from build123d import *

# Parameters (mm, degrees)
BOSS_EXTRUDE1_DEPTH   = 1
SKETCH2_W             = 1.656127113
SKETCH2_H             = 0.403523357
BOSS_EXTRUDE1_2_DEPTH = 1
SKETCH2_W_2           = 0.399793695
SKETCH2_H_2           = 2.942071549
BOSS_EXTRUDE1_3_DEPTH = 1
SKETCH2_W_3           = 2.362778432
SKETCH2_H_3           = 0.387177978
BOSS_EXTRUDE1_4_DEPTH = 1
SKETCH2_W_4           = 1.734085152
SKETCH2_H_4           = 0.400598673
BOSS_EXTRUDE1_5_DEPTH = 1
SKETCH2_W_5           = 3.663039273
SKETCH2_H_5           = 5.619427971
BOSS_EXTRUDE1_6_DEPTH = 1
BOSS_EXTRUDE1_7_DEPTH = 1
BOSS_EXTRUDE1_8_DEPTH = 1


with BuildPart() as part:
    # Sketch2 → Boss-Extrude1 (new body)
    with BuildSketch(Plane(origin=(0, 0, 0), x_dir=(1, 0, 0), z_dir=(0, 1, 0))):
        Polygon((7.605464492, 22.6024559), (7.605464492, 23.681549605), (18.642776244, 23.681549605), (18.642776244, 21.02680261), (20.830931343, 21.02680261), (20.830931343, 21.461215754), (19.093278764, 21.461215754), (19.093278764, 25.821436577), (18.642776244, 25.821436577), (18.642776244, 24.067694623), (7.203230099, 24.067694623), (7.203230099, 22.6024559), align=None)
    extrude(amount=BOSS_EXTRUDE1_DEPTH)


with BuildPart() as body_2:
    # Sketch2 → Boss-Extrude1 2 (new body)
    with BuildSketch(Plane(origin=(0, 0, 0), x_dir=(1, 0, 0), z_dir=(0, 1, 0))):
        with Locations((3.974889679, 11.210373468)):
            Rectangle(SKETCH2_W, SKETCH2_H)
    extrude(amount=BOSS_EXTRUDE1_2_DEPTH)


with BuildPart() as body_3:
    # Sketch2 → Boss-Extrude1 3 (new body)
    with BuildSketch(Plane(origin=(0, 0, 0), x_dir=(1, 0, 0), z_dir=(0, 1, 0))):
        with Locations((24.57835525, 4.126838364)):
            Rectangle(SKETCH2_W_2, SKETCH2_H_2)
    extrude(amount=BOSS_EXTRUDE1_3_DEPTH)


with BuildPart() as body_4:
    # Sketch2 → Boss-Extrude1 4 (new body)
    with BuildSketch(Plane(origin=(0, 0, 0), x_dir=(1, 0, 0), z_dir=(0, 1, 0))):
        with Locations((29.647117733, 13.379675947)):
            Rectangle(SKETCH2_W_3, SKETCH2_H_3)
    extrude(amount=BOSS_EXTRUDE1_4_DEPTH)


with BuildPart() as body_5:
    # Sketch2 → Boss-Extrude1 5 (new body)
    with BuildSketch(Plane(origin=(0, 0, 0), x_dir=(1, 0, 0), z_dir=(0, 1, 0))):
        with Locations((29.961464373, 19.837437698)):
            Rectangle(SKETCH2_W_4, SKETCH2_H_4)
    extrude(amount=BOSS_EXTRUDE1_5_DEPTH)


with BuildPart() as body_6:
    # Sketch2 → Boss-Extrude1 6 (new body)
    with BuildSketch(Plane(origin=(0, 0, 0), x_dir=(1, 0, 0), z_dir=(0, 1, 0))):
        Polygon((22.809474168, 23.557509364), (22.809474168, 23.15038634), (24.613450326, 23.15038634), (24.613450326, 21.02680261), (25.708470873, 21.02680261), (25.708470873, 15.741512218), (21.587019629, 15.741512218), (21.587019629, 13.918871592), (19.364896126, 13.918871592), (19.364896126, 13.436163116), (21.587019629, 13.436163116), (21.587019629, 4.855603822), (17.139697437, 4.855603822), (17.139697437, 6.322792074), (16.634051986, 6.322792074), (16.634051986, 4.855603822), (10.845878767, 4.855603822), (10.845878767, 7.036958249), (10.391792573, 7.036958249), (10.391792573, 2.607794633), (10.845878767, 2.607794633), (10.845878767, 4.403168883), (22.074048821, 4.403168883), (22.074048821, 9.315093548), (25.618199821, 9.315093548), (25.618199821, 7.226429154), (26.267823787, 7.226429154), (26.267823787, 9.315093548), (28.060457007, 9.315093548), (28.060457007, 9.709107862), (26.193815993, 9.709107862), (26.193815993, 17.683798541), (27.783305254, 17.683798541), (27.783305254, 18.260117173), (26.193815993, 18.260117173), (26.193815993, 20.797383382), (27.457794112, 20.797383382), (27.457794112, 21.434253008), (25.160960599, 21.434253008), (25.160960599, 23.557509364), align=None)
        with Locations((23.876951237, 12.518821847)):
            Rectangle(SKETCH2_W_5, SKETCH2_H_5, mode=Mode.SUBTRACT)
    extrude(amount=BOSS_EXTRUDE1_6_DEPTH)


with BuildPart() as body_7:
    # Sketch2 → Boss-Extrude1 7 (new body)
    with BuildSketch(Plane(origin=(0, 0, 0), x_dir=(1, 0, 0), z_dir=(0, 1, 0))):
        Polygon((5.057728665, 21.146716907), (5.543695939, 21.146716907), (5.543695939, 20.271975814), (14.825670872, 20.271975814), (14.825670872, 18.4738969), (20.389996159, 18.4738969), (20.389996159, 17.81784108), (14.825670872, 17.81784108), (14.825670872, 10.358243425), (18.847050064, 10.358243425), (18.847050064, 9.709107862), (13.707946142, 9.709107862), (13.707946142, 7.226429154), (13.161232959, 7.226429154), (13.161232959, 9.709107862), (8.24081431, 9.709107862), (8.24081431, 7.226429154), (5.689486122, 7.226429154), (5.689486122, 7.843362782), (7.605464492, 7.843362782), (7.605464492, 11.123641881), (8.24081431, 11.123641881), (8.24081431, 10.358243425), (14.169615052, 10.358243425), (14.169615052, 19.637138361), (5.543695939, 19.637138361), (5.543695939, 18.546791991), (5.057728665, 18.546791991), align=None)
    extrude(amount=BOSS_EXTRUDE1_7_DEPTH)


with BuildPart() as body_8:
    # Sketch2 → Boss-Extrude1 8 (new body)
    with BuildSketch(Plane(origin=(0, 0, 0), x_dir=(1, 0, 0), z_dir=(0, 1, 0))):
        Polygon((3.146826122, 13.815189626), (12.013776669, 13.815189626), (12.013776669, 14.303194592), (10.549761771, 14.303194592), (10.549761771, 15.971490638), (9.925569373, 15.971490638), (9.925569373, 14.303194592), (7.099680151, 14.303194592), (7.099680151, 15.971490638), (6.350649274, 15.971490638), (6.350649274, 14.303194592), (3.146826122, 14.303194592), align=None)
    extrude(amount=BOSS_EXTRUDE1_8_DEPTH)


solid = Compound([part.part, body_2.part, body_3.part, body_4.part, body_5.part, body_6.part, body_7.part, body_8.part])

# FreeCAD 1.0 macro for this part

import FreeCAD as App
import Part
import Sketcher

V = App.Vector
Q = App.Units.Quantity

doc = App.newDocument("Part")
body = doc.addObject("PartDesign::Body", "Body")

sketch1 = body.newObject("Sketcher::SketchObject", "Sketch")
sketch1.AttachmentSupport = (doc.getObject("XZ_Plane"), [""])
sketch1.MapMode = "FlatFace"
sketch1.addGeometry([
    Part.LineSegment(V(7.61, -22.6, 0), V(7.61, -23.68, 0)),
    Part.LineSegment(V(7.61, -23.68, 0), V(18.64, -23.68, 0)),
    Part.LineSegment(V(18.64, -23.68, 0), V(18.64, -21.03, 0)),
    Part.LineSegment(V(18.64, -21.03, 0), V(20.83, -21.03, 0)),
    Part.LineSegment(V(20.83, -21.03, 0), V(20.83, -21.46, 0)),
    Part.LineSegment(V(20.83, -21.46, 0), V(19.09, -21.46, 0)),
    Part.LineSegment(V(19.09, -21.46, 0), V(19.09, -25.82, 0)),
    Part.LineSegment(V(19.09, -25.82, 0), V(18.64, -25.82, 0)),
    Part.LineSegment(V(18.64, -25.82, 0), V(18.64, -24.07, 0)),
    Part.LineSegment(V(18.64, -24.07, 0), V(7.2, -24.07, 0)),
    Part.LineSegment(V(7.2, -24.07, 0), V(7.2, -22.6, 0)),
    Part.LineSegment(V(7.2, -22.6, 0), V(7.61, -22.6, 0)),
], False)
sketch1.addConstraint([
    Sketcher.Constraint("Coincident", 0, 2, 1, 1),
    Sketcher.Constraint("Coincident", 1, 2, 2, 1),
    Sketcher.Constraint("Coincident", 2, 2, 3, 1),
    Sketcher.Constraint("Coincident", 3, 2, 4, 1),
    Sketcher.Constraint("Coincident", 4, 2, 5, 1),
    Sketcher.Constraint("Coincident", 5, 2, 6, 1),
    Sketcher.Constraint("Coincident", 6, 2, 7, 1),
    Sketcher.Constraint("Coincident", 7, 2, 8, 1),
    Sketcher.Constraint("Coincident", 8, 2, 9, 1),
    Sketcher.Constraint("Coincident", 9, 2, 10, 1),
    Sketcher.Constraint("Coincident", 10, 2, 11, 1),
    Sketcher.Constraint("Coincident", 11, 2, 0, 1),
    Sketcher.Constraint("Vertical", 0),
    Sketcher.Constraint("Horizontal", 1),
    Sketcher.Constraint("Vertical", 2),
    Sketcher.Constraint("Horizontal", 3),
    Sketcher.Constraint("Vertical", 4),
    Sketcher.Constraint("Horizontal", 5),
    Sketcher.Constraint("Vertical", 6),
    Sketcher.Constraint("Horizontal", 7),
    Sketcher.Constraint("Vertical", 8),
    Sketcher.Constraint("Horizontal", 9),
    Sketcher.Constraint("Vertical", 10),
    Sketcher.Constraint("Horizontal", 11),
    Sketcher.Constraint("Vertical", 2, 2, 7, 2),
    Sketcher.Constraint("DistanceX", 1, 1, 1, 2, Q("11.037312 mm")),
    Sketcher.Constraint("DistanceY", 6, 2, 6, 1, Q("4.360221 mm")),
    Sketcher.Constraint("DistanceY", 8, 1, 8, 2, Q("1.753742 mm")),
    Sketcher.Constraint("DistanceY", 10, 1, 10, 2, Q("1.465239 mm")),
    Sketcher.Constraint("DistanceX", 3, 1, 3, 2, Q("2.188155 mm")),
    Sketcher.Constraint("DistanceX", 5, 2, 5, 1, Q("1.737653 mm")),
    Sketcher.Constraint("DistanceX", 9, 2, 9, 1, Q("11.439546 mm")),
    Sketcher.Constraint("DistanceY", 0, 2, 0, 1, Q("1.079094 mm")),
    Sketcher.Constraint("DistanceY", 2, 1, 2, 2, Q("2.654747 mm")),
    Sketcher.Constraint("DistanceY", 0, 2, -1, 1, Q("23.68155 mm")),
    Sketcher.Constraint("DistanceX", -1, 1, 3, 2, Q("20.830931 mm")),
])
pad1 = body.newObject("PartDesign::Pad", "Pad")
pad1.Profile = sketch1
pad1.Length = 1
pad1.Reversed = True
body2 = doc.addObject("PartDesign::Body", "Body001")

sketch2 = body2.newObject("Sketcher::SketchObject", "Sketch001")
sketch2.AttachmentSupport = (doc.getObject("XZ_Plane001"), [""])
sketch2.MapMode = "FlatFace"
sketch2.addGeometry([
    Part.LineSegment(V(3.15, -11.41, 0), V(3.15, -11.01, 0)),
    Part.LineSegment(V(3.15, -11.01, 0), V(4.8, -11.01, 0)),
    Part.LineSegment(V(4.8, -11.01, 0), V(4.8, -11.41, 0)),
    Part.LineSegment(V(4.8, -11.41, 0), V(3.15, -11.41, 0)),
], False)
sketch2.addConstraint([
    Sketcher.Constraint("Coincident", 0, 2, 1, 1),
    Sketcher.Constraint("Coincident", 1, 2, 2, 1),
    Sketcher.Constraint("Coincident", 2, 2, 3, 1),
    Sketcher.Constraint("Coincident", 3, 2, 0, 1),
    Sketcher.Constraint("Vertical", 0),
    Sketcher.Constraint("Horizontal", 1),
    Sketcher.Constraint("Vertical", 2),
    Sketcher.Constraint("Horizontal", 3),
    Sketcher.Constraint("DistanceX", 1, 1, 1, 2, Q("1.656127 mm")),
    Sketcher.Constraint("DistanceY", 0, 1, 0, 2, Q("0.403523 mm")),
    Sketcher.Constraint("DistanceY", 0, 2, -1, 1, Q("11.008612 mm")),
    Sketcher.Constraint("DistanceX", -1, 1, 0, 2, Q("3.146826 mm")),
])
pad2 = body2.newObject("PartDesign::Pad", "Pad001")
pad2.Profile = sketch2
pad2.Length = 1
pad2.Reversed = True
body3 = doc.addObject("PartDesign::Body", "Body002")

sketch3 = body3.newObject("Sketcher::SketchObject", "Sketch002")
sketch3.AttachmentSupport = (doc.getObject("XZ_Plane002"), [""])
sketch3.MapMode = "FlatFace"
sketch3.addGeometry([
    Part.LineSegment(V(24.38, -5.6, 0), V(24.38, -2.66, 0)),
    Part.LineSegment(V(24.38, -2.66, 0), V(24.78, -2.66, 0)),
    Part.LineSegment(V(24.78, -2.66, 0), V(24.78, -5.6, 0)),
    Part.LineSegment(V(24.78, -5.6, 0), V(24.38, -5.6, 0)),
], False)
sketch3.addConstraint([
    Sketcher.Constraint("Coincident", 0, 2, 1, 1),
    Sketcher.Constraint("Coincident", 1, 2, 2, 1),
    Sketcher.Constraint("Coincident", 2, 2, 3, 1),
    Sketcher.Constraint("Coincident", 3, 2, 0, 1),
    Sketcher.Constraint("Vertical", 0),
    Sketcher.Constraint("Horizontal", 1),
    Sketcher.Constraint("Vertical", 2),
    Sketcher.Constraint("Horizontal", 3),
    Sketcher.Constraint("DistanceY", 0, 1, 0, 2, Q("2.942072 mm")),
    Sketcher.Constraint("DistanceX", 1, 1, 1, 2, Q("0.399794 mm")),
    Sketcher.Constraint("DistanceX", -1, 1, 0, 2, Q("24.378458 mm")),
    Sketcher.Constraint("DistanceY", 0, 2, -1, 1, Q("2.655803 mm")),
])
pad3 = body3.newObject("PartDesign::Pad", "Pad002")
pad3.Profile = sketch3
pad3.Length = 1
pad3.Reversed = True
body4 = doc.addObject("PartDesign::Body", "Body003")

sketch4 = body4.newObject("Sketcher::SketchObject", "Sketch003")
sketch4.AttachmentSupport = (doc.getObject("XZ_Plane003"), [""])
sketch4.MapMode = "FlatFace"
sketch4.addGeometry([
    Part.LineSegment(V(28.47, -13.57, 0), V(28.47, -13.19, 0)),
    Part.LineSegment(V(28.47, -13.19, 0), V(30.83, -13.19, 0)),
    Part.LineSegment(V(30.83, -13.19, 0), V(30.83, -13.57, 0)),
    Part.LineSegment(V(30.83, -13.57, 0), V(28.47, -13.57, 0)),
], False)
sketch4.addConstraint([
    Sketcher.Constraint("Coincident", 0, 2, 1, 1),
    Sketcher.Constraint("Coincident", 1, 2, 2, 1),
    Sketcher.Constraint("Coincident", 2, 2, 3, 1),
    Sketcher.Constraint("Coincident", 3, 2, 0, 1),
    Sketcher.Constraint("Vertical", 0),
    Sketcher.Constraint("Horizontal", 1),
    Sketcher.Constraint("Vertical", 2),
    Sketcher.Constraint("Horizontal", 3),
    Sketcher.Constraint("DistanceX", 1, 1, 1, 2, Q("2.362778 mm")),
    Sketcher.Constraint("DistanceY", 0, 1, 0, 2, Q("0.387178 mm")),
    Sketcher.Constraint("DistanceX", -1, 1, 0, 2, Q("28.465729 mm")),
    Sketcher.Constraint("DistanceY", 0, 2, -1, 1, Q("13.186087 mm")),
])
pad4 = body4.newObject("PartDesign::Pad", "Pad003")
pad4.Profile = sketch4
pad4.Length = 1
pad4.Reversed = True
body5 = doc.addObject("PartDesign::Body", "Body004")

sketch5 = body5.newObject("Sketcher::SketchObject", "Sketch004")
sketch5.AttachmentSupport = (doc.getObject("XZ_Plane004"), [""])
sketch5.MapMode = "FlatFace"
sketch5.addGeometry([
    Part.LineSegment(V(29.09, -20.04, 0), V(29.09, -19.64, 0)),
    Part.LineSegment(V(29.09, -19.64, 0), V(30.83, -19.64, 0)),
    Part.LineSegment(V(30.83, -19.64, 0), V(30.83, -20.04, 0)),
    Part.LineSegment(V(30.83, -20.04, 0), V(29.09, -20.04, 0)),
], False)
sketch5.addConstraint([
    Sketcher.Constraint("Coincident", 0, 2, 1, 1),
    Sketcher.Constraint("Coincident", 1, 2, 2, 1),
    Sketcher.Constraint("Coincident", 2, 2, 3, 1),
    Sketcher.Constraint("Coincident", 3, 2, 0, 1),
    Sketcher.Constraint("Vertical", 0),
    Sketcher.Constraint("Horizontal", 1),
    Sketcher.Constraint("Vertical", 2),
    Sketcher.Constraint("Horizontal", 3),
    Sketcher.Constraint("DistanceY", 0, 1, 0, 2, Q("0.400599 mm")),
    Sketcher.Constraint("DistanceX", 1, 1, 1, 2, Q("1.734085 mm")),
    Sketcher.Constraint("DistanceX", -1, 1, 0, 2, Q("29.094422 mm")),
    Sketcher.Constraint("DistanceY", 0, 2, -1, 1, Q("19.637138 mm")),
])
pad5 = body5.newObject("PartDesign::Pad", "Pad004")
pad5.Profile = sketch5
pad5.Length = 1
pad5.Reversed = True
body6 = doc.addObject("PartDesign::Body", "Body005")

sketch6 = body6.newObject("Sketcher::SketchObject", "Sketch005")
sketch6.AttachmentSupport = (doc.getObject("XZ_Plane005"), [""])
sketch6.MapMode = "FlatFace"
sketch6.addGeometry([
    Part.LineSegment(V(22.81, -23.56, 0), V(22.81, -23.15, 0)),
    Part.LineSegment(V(22.81, -23.15, 0), V(24.61, -23.15, 0)),
    Part.LineSegment(V(24.61, -23.15, 0), V(24.61, -21.03, 0)),
    Part.LineSegment(V(24.61, -21.03, 0), V(25.71, -21.03, 0)),
    Part.LineSegment(V(25.71, -21.03, 0), V(25.71, -15.74, 0)),
    Part.LineSegment(V(25.71, -15.74, 0), V(21.59, -15.74, 0)),
    Part.LineSegment(V(21.59, -15.74, 0), V(21.59, -13.92, 0)),
    Part.LineSegment(V(21.59, -13.92, 0), V(19.36, -13.92, 0)),
    Part.LineSegment(V(19.36, -13.92, 0), V(19.36, -13.44, 0)),
    Part.LineSegment(V(19.36, -13.44, 0), V(21.59, -13.44, 0)),
    Part.LineSegment(V(21.59, -13.44, 0), V(21.59, -4.86, 0)),
    Part.LineSegment(V(21.59, -4.86, 0), V(17.14, -4.86, 0)),
    Part.LineSegment(V(17.14, -4.86, 0), V(17.14, -6.32, 0)),
    Part.LineSegment(V(17.14, -6.32, 0), V(16.63, -6.32, 0)),
    Part.LineSegment(V(16.63, -6.32, 0), V(16.63, -4.86, 0)),
    Part.LineSegment(V(16.63, -4.86, 0), V(10.85, -4.86, 0)),
    Part.LineSegment(V(10.85, -4.86, 0), V(10.85, -7.04, 0)),
    Part.LineSegment(V(10.85, -7.04, 0), V(10.39, -7.04, 0)),
    Part.LineSegment(V(10.39, -7.04, 0), V(10.39, -2.61, 0)),
    Part.LineSegment(V(10.39, -2.61, 0), V(10.85, -2.61, 0)),
    Part.LineSegment(V(10.85, -2.61, 0), V(10.85, -4.4, 0)),
    Part.LineSegment(V(10.85, -4.4, 0), V(22.07, -4.4, 0)),
    Part.LineSegment(V(22.07, -4.4, 0), V(22.07, -9.32, 0)),
    Part.LineSegment(V(22.07, -9.32, 0), V(25.62, -9.32, 0)),
    Part.LineSegment(V(25.62, -9.32, 0), V(25.62, -7.23, 0)),
    Part.LineSegment(V(25.62, -7.23, 0), V(26.27, -7.23, 0)),
    Part.LineSegment(V(26.27, -7.23, 0), V(26.27, -9.32, 0)),
    Part.LineSegment(V(26.27, -9.32, 0), V(28.06, -9.32, 0)),
    Part.LineSegment(V(28.06, -9.32, 0), V(28.06, -9.71, 0)),
    Part.LineSegment(V(28.06, -9.71, 0), V(26.19, -9.71, 0)),
    Part.LineSegment(V(26.19, -9.71, 0), V(26.19, -17.68, 0)),
    Part.LineSegment(V(26.19, -17.68, 0), V(27.78, -17.68, 0)),
    Part.LineSegment(V(27.78, -17.68, 0), V(27.78, -18.26, 0)),
    Part.LineSegment(V(27.78, -18.26, 0), V(26.19, -18.26, 0)),
    Part.LineSegment(V(26.19, -18.26, 0), V(26.19, -20.8, 0)),
    Part.LineSegment(V(26.19, -20.8, 0), V(27.46, -20.8, 0)),
    Part.LineSegment(V(27.46, -20.8, 0), V(27.46, -21.43, 0)),
    Part.LineSegment(V(27.46, -21.43, 0), V(25.16, -21.43, 0)),
    Part.LineSegment(V(25.16, -21.43, 0), V(25.16, -23.56, 0)),
    Part.LineSegment(V(25.16, -23.56, 0), V(22.81, -23.56, 0)),
    Part.LineSegment(V(25.71, -9.71, 0), V(22.05, -9.71, 0)),
    Part.LineSegment(V(22.05, -9.71, 0), V(22.05, -15.33, 0)),
    Part.LineSegment(V(22.05, -15.33, 0), V(25.71, -15.33, 0)),
    Part.LineSegment(V(25.71, -15.33, 0), V(25.71, -9.71, 0)),
], False)
sketch6.addConstraint([
    Sketcher.Constraint("Coincident", 0, 2, 1, 1),
    Sketcher.Constraint("Coincident", 1, 2, 2, 1),
    Sketcher.Constraint("Coincident", 2, 2, 3, 1),
    Sketcher.Constraint("Coincident", 3, 2, 4, 1),
    Sketcher.Constraint("Coincident", 4, 2, 5, 1),
    Sketcher.Constraint("Coincident", 5, 2, 6, 1),
    Sketcher.Constraint("Coincident", 6, 2, 7, 1),
    Sketcher.Constraint("Coincident", 7, 2, 8, 1),
    Sketcher.Constraint("Coincident", 8, 2, 9, 1),
    Sketcher.Constraint("Coincident", 9, 2, 10, 1),
    Sketcher.Constraint("Coincident", 10, 2, 11, 1),
    Sketcher.Constraint("Coincident", 11, 2, 12, 1),
    Sketcher.Constraint("Coincident", 12, 2, 13, 1),
    Sketcher.Constraint("Coincident", 13, 2, 14, 1),
    Sketcher.Constraint("Coincident", 14, 2, 15, 1),
    Sketcher.Constraint("Coincident", 15, 2, 16, 1),
    Sketcher.Constraint("Coincident", 16, 2, 17, 1),
    Sketcher.Constraint("Coincident", 17, 2, 18, 1),
    Sketcher.Constraint("Coincident", 18, 2, 19, 1),
    Sketcher.Constraint("Coincident", 19, 2, 20, 1),
    Sketcher.Constraint("Coincident", 20, 2, 21, 1),
    Sketcher.Constraint("Coincident", 21, 2, 22, 1),
    Sketcher.Constraint("Coincident", 22, 2, 23, 1),
    Sketcher.Constraint("Coincident", 23, 2, 24, 1),
    Sketcher.Constraint("Coincident", 24, 2, 25, 1),
    Sketcher.Constraint("Coincident", 25, 2, 26, 1),
    Sketcher.Constraint("Coincident", 26, 2, 27, 1),
    Sketcher.Constraint("Coincident", 27, 2, 28, 1),
    Sketcher.Constraint("Coincident", 28, 2, 29, 1),
    Sketcher.Constraint("Coincident", 29, 2, 30, 1),
    Sketcher.Constraint("Coincident", 30, 2, 31, 1),
    Sketcher.Constraint("Coincident", 31, 2, 32, 1),
    Sketcher.Constraint("Coincident", 32, 2, 33, 1),
    Sketcher.Constraint("Coincident", 33, 2, 34, 1),
    Sketcher.Constraint("Coincident", 34, 2, 35, 1),
    Sketcher.Constraint("Coincident", 35, 2, 36, 1),
    Sketcher.Constraint("Coincident", 36, 2, 37, 1),
    Sketcher.Constraint("Coincident", 37, 2, 38, 1),
    Sketcher.Constraint("Coincident", 38, 2, 39, 1),
    Sketcher.Constraint("Coincident", 39, 2, 0, 1),
    Sketcher.Constraint("Coincident", 40, 2, 41, 1),
    Sketcher.Constraint("Coincident", 41, 2, 42, 1),
    Sketcher.Constraint("Coincident", 42, 2, 43, 1),
    Sketcher.Constraint("Coincident", 43, 2, 40, 1),
    Sketcher.Constraint("Vertical", 0),
    Sketcher.Constraint("Horizontal", 1),
    Sketcher.Constraint("Vertical", 2),
    Sketcher.Constraint("Horizontal", 3),
    Sketcher.Constraint("Vertical", 4),
    Sketcher.Constraint("Horizontal", 5),
    Sketcher.Constraint("Vertical", 6),
    Sketcher.Constraint("Horizontal", 7),
    Sketcher.Constraint("Vertical", 8),
    Sketcher.Constraint("Horizontal", 9),
    Sketcher.Constraint("Vertical", 10),
    Sketcher.Constraint("Horizontal", 11),
    Sketcher.Constraint("Vertical", 12),
    Sketcher.Constraint("Horizontal", 13),
    Sketcher.Constraint("Vertical", 14),
    Sketcher.Constraint("Horizontal", 15),
    Sketcher.Constraint("Vertical", 16),
    Sketcher.Constraint("Horizontal", 17),
    Sketcher.Constraint("Vertical", 18),
    Sketcher.Constraint("Horizontal", 19),
    Sketcher.Constraint("Vertical", 20),
    Sketcher.Constraint("Horizontal", 21),
    Sketcher.Constraint("Vertical", 22),
    Sketcher.Constraint("Horizontal", 23),
    Sketcher.Constraint("Vertical", 24),
    Sketcher.Constraint("Horizontal", 25),
    Sketcher.Constraint("Vertical", 26),
    Sketcher.Constraint("Horizontal", 27),
    Sketcher.Constraint("Vertical", 28),
    Sketcher.Constraint("Horizontal", 29),
    Sketcher.Constraint("Vertical", 30),
    Sketcher.Constraint("Horizontal", 31),
    Sketcher.Constraint("Vertical", 32),
    Sketcher.Constraint("Horizontal", 33),
    Sketcher.Constraint("Vertical", 34),
    Sketcher.Constraint("Horizontal", 35),
    Sketcher.Constraint("Vertical", 36),
    Sketcher.Constraint("Horizontal", 37),
    Sketcher.Constraint("Vertical", 38),
    Sketcher.Constraint("Horizontal", 39),
    Sketcher.Constraint("Horizontal", 40),
    Sketcher.Constraint("Vertical", 41),
    Sketcher.Constraint("Horizontal", 42),
    Sketcher.Constraint("Vertical", 43),
    Sketcher.Constraint("Horizontal", 11, 2, 14, 2),
    Sketcher.Constraint("Horizontal", 23, 2, 26, 2),
    Sketcher.Constraint("Horizontal", 29, 2, 40, 2),
    Sketcher.Constraint("Vertical", 6, 2, 9, 2),
    Sketcher.Constraint("Vertical", 16, 2, 19, 2),
    Sketcher.Constraint("Vertical", 30, 2, 33, 2),
    Sketcher.Constraint("Vertical", 4, 2, 42, 2),
    Sketcher.Constraint("DistanceX", 3, 1, 3, 2, Q("1.095021 mm")),
    Sketcher.Constraint("DistanceX", 5, 2, 5, 1, Q("4.121451 mm")),
    Sketcher.Constraint("DistanceX", 21, 1, 21, 2, Q("11.22817 mm")),
    Sketcher.Constraint("DistanceX", 23, 1, 23, 2, Q("3.544151 mm")),
    Sketcher.Constraint("DistanceX", 29, 2, 29, 1, Q("1.866641 mm")),
    Sketcher.Constraint("DistanceX", 31, 1, 31, 2, Q("1.589489 mm")),
    Sketcher.Constraint("DistanceX", 35, 1, 35, 2, Q("1.263978 mm")),
    Sketcher.Constraint("DistanceX", 40, 2, 40, 1, Q("3.663039 mm")),
    Sketcher.Constraint("DistanceY", 4, 1, 4, 2, Q("5.28529 mm")),
    Sketcher.Constraint("DistanceY", 6, 1, 6, 2, Q("1.822641 mm")),
    Sketcher.Constraint("DistanceY", 8, 1, 8, 2, Q("0.482708 mm")),
    Sketcher.Constraint("DistanceY", 10, 1, 10, 2, Q("8.580559 mm")),
    Sketcher.Constraint("DistanceY", 12, 2, 12, 1, Q("1.467188 mm")),
    Sketcher.Constraint("DistanceY", 30, 2, 30, 1, Q("7.974691 mm")),
    Sketcher.Constraint("DistanceY", 32, 2, 32, 1, Q("0.576319 mm")),
    Sketcher.Constraint("DistanceY", 36, 2, 36, 1, Q("0.63687 mm")),
    Sketcher.Constraint("DistanceX", -1, 1, 23, 2, Q("25.6182 mm")),
    Sketcher.Constraint("DistanceY", 30, 2, -1, 1, Q("17.683799 mm")),
    Sketcher.Constraint("DistanceX", 11, 2, 8, 2, Q("2.225199 mm")),
    Sketcher.Constraint("DistanceX", 1, 1, 1, 2, Q("1.803976 mm")),
    Sketcher.Constraint("DistanceX", 7, 2, 7, 1, Q("2.222124 mm")),
    Sketcher.Constraint("DistanceX", 13, 2, 13, 1, Q("0.505645 mm")),
    Sketcher.Constraint("DistanceX", 15, 2, 15, 1, Q("5.788173 mm")),
    Sketcher.Constraint("DistanceX", 17, 2, 17, 1, Q("0.454086 mm")),
    Sketcher.Constraint("DistanceX", 25, 1, 25, 2, Q("0.649624 mm")),
    Sketcher.Constraint("DistanceX", 27, 1, 27, 2, Q("1.792633 mm")),
    Sketcher.Constraint("DistanceX", 37, 2, 37, 1, Q("2.296834 mm")),
    Sketcher.Constraint("DistanceY", 0, 1, 0, 2, Q("0.407123 mm")),
    Sketcher.Constraint("DistanceY", 2, 1, 2, 2, Q("2.123584 mm")),
    Sketcher.Constraint("DistanceY", 16, 2, 16, 1, Q("2.181354 mm")),
    Sketcher.Constraint("DistanceY", 18, 1, 18, 2, Q("4.429164 mm")),
    Sketcher.Constraint("DistanceY", 20, 2, 20, 1, Q("1.795374 mm")),
    Sketcher.Constraint("DistanceY", 22, 2, 22, 1, Q("4.911925 mm")),
    Sketcher.Constraint("DistanceY", 24, 1, 24, 2, Q("2.088664 mm")),
    Sketcher.Constraint("DistanceY", 28, 2, 28, 1, Q("0.394014 mm")),
    Sketcher.Constraint("DistanceY", 34, 2, 34, 1, Q("2.537266 mm")),
    Sketcher.Constraint("DistanceY", 41, 2, 41, 1, Q("5.619428 mm")),
])
pad6 = body6.newObject("PartDesign::Pad", "Pad005")
pad6.Profile = sketch6
pad6.Length = 1
pad6.Reversed = True
body7 = doc.addObject("PartDesign::Body", "Body006")

sketch7 = body7.newObject("Sketcher::SketchObject", "Sketch006")
sketch7.AttachmentSupport = (doc.getObject("XZ_Plane006"), [""])
sketch7.MapMode = "FlatFace"
sketch7.addGeometry([
    Part.LineSegment(V(5.54, -21.15, 0), V(5.06, -21.15, 0)),
    Part.LineSegment(V(5.06, -21.15, 0), V(5.06, -18.55, 0)),
    Part.LineSegment(V(5.06, -18.55, 0), V(5.54, -18.55, 0)),
    Part.LineSegment(V(5.54, -18.55, 0), V(5.54, -19.64, 0)),
    Part.LineSegment(V(5.54, -19.64, 0), V(14.17, -19.64, 0)),
    Part.LineSegment(V(14.17, -19.64, 0), V(14.17, -10.36, 0)),
    Part.LineSegment(V(14.17, -10.36, 0), V(8.24, -10.36, 0)),
    Part.LineSegment(V(8.24, -10.36, 0), V(8.24, -11.12, 0)),
    Part.LineSegment(V(8.24, -11.12, 0), V(7.61, -11.12, 0)),
    Part.LineSegment(V(7.61, -11.12, 0), V(7.61, -7.84, 0)),
    Part.LineSegment(V(7.61, -7.84, 0), V(5.69, -7.84, 0)),
    Part.LineSegment(V(5.69, -7.84, 0), V(5.69, -7.23, 0)),
    Part.LineSegment(V(5.69, -7.23, 0), V(8.24, -7.23, 0)),
    Part.LineSegment(V(8.24, -7.23, 0), V(8.24, -9.71, 0)),
    Part.LineSegment(V(8.24, -9.71, 0), V(13.16, -9.71, 0)),
    Part.LineSegment(V(13.16, -9.71, 0), V(13.16, -7.23, 0)),
    Part.LineSegment(V(13.16, -7.23, 0), V(13.71, -7.23, 0)),
    Part.LineSegment(V(13.71, -7.23, 0), V(13.71, -9.71, 0)),
    Part.LineSegment(V(13.71, -9.71, 0), V(18.85, -9.71, 0)),
    Part.LineSegment(V(18.85, -9.71, 0), V(18.85, -10.36, 0)),
    Part.LineSegment(V(18.85, -10.36, 0), V(14.83, -10.36, 0)),
    Part.LineSegment(V(14.83, -10.36, 0), V(14.83, -17.82, 0)),
    Part.LineSegment(V(14.83, -17.82, 0), V(20.39, -17.82, 0)),
    Part.LineSegment(V(20.39, -17.82, 0), V(20.39, -18.47, 0)),
    Part.LineSegment(V(20.39, -18.47, 0), V(14.83, -18.47, 0)),
    Part.LineSegment(V(14.83, -18.47, 0), V(14.83, -20.27, 0)),
    Part.LineSegment(V(14.83, -20.27, 0), V(5.54, -20.27, 0)),
    Part.LineSegment(V(5.54, -20.27, 0), V(5.54, -21.15, 0)),
], False)
sketch7.addConstraint([
    Sketcher.Constraint("Coincident", 0, 2, 1, 1),
    Sketcher.Constraint("Coincident", 1, 2, 2, 1),
    Sketcher.Constraint("Coincident", 2, 2, 3, 1),
    Sketcher.Constraint("Coincident", 3, 2, 4, 1),
    Sketcher.Constraint("Coincident", 4, 2, 5, 1),
    Sketcher.Constraint("Coincident", 5, 2, 6, 1),
    Sketcher.Constraint("Coincident", 6, 2, 7, 1),
    Sketcher.Constraint("Coincident", 7, 2, 8, 1),
    Sketcher.Constraint("Coincident", 8, 2, 9, 1),
    Sketcher.Constraint("Coincident", 9, 2, 10, 1),
    Sketcher.Constraint("Coincident", 10, 2, 11, 1),
    Sketcher.Constraint("Coincident", 11, 2, 12, 1),
    Sketcher.Constraint("Coincident", 12, 2, 13, 1),
    Sketcher.Constraint("Coincident", 13, 2, 14, 1),
    Sketcher.Constraint("Coincident", 14, 2, 15, 1),
    Sketcher.Constraint("Coincident", 15, 2, 16, 1),
    Sketcher.Constraint("Coincident", 16, 2, 17, 1),
    Sketcher.Constraint("Coincident", 17, 2, 18, 1),
    Sketcher.Constraint("Coincident", 18, 2, 19, 1),
    Sketcher.Constraint("Coincident", 19, 2, 20, 1),
    Sketcher.Constraint("Coincident", 20, 2, 21, 1),
    Sketcher.Constraint("Coincident", 21, 2, 22, 1),
    Sketcher.Constraint("Coincident", 22, 2, 23, 1),
    Sketcher.Constraint("Coincident", 23, 2, 24, 1),
    Sketcher.Constraint("Coincident", 24, 2, 25, 1),
    Sketcher.Constraint("Coincident", 25, 2, 26, 1),
    Sketcher.Constraint("Coincident", 26, 2, 27, 1),
    Sketcher.Constraint("Coincident", 27, 2, 0, 1),
    Sketcher.Constraint("Horizontal", 0),
    Sketcher.Constraint("Vertical", 1),
    Sketcher.Constraint("Horizontal", 2),
    Sketcher.Constraint("Vertical", 3),
    Sketcher.Constraint("Horizontal", 4),
    Sketcher.Constraint("Vertical", 5),
    Sketcher.Constraint("Horizontal", 6),
    Sketcher.Constraint("Vertical", 7),
    Sketcher.Constraint("Horizontal", 8),
    Sketcher.Constraint("Vertical", 9),
    Sketcher.Constraint("Horizontal", 10),
    Sketcher.Constraint("Vertical", 11),
    Sketcher.Constraint("Horizontal", 12),
    Sketcher.Constraint("Vertical", 13),
    Sketcher.Constraint("Horizontal", 14),
    Sketcher.Constraint("Vertical", 15),
    Sketcher.Constraint("Horizontal", 16),
    Sketcher.Constraint("Vertical", 17),
    Sketcher.Constraint("Horizontal", 18),
    Sketcher.Constraint("Vertical", 19),
    Sketcher.Constraint("Horizontal", 20),
    Sketcher.Constraint("Vertical", 21),
    Sketcher.Constraint("Horizontal", 22),
    Sketcher.Constraint("Vertical", 23),
    Sketcher.Constraint("Horizontal", 24),
    Sketcher.Constraint("Vertical", 25),
    Sketcher.Constraint("Horizontal", 26),
    Sketcher.Constraint("Vertical", 27),
    Sketcher.Constraint("Horizontal", 12, 2, 15, 2),
    Sketcher.Constraint("Horizontal", 14, 2, 17, 2),
    Sketcher.Constraint("Horizontal", 6, 2, 19, 2),
    Sketcher.Constraint("Vertical", 7, 2, 12, 2),
    Sketcher.Constraint("Vertical", 21, 2, 24, 2),
    Sketcher.Constraint("Vertical", 3, 2, 26, 2),
    Sketcher.Constraint("DistanceX", 6, 2, 6, 1, Q("5.928801 mm")),
    Sketcher.Constraint("DistanceY", 7, 2, 7, 1, Q("0.765398 mm")),
    Sketcher.Constraint("DistanceX", 4, 1, 4, 2, Q("8.625919 mm")),
    Sketcher.Constraint("DistanceX", 8, 2, 8, 1, Q("0.63535 mm")),
    Sketcher.Constraint("DistanceX", 10, 2, 10, 1, Q("1.915978 mm")),
    Sketcher.Constraint("DistanceX", 14, 1, 14, 2, Q("4.920419 mm")),
    Sketcher.Constraint("DistanceX", 20, 2, 20, 1, Q("4.021379 mm")),
    Sketcher.Constraint("DistanceY", 9, 1, 9, 2, Q("3.280279 mm")),
    Sketcher.Constraint("DistanceY", 13, 2, 13, 1, Q("2.482679 mm")),
    Sketcher.Constraint("DistanceY", 25, 2, 25, 1, Q("1.798079 mm")),
    Sketcher.Constraint("DistanceY", 27, 2, 27, 1, Q("0.874741 mm")),
    Sketcher.Constraint("DistanceX", 0, 2, 0, 1, Q("0.485967 mm")),
    Sketcher.Constraint("DistanceX", 16, 1, 16, 2, Q("0.546713 mm")),
    Sketcher.Constraint("DistanceX", 18, 1, 18, 2, Q("5.139104 mm")),
    Sketcher.Constraint("DistanceX", 22, 1, 22, 2, Q("5.564325 mm")),
    Sketcher.Constraint("DistanceY", 1, 1, 1, 2, Q("2.599925 mm")),
    Sketcher.Constraint("DistanceY", 3, 2, 3, 1, Q("1.090346 mm")),
    Sketcher.Constraint("DistanceY", 5, 1, 5, 2, Q("9.278895 mm")),
    Sketcher.Constraint("DistanceY", 11, 1, 11, 2, Q("0.616934 mm")),
    Sketcher.Constraint("DistanceY", 21, 2, 21, 1, Q("7.459598 mm")),
    Sketcher.Constraint("DistanceX", -1, 1, 0, 2, Q("5.057729 mm")),
    Sketcher.Constraint("DistanceY", 1, 2, -1, 1, Q("18.546792 mm")),
])
pad7 = body7.newObject("PartDesign::Pad", "Pad006")
pad7.Profile = sketch7
pad7.Length = 1
pad7.Reversed = True
body8 = doc.addObject("PartDesign::Body", "Body007")

sketch8 = body8.newObject("Sketcher::SketchObject", "Sketch007")
sketch8.AttachmentSupport = (doc.getObject("XZ_Plane007"), [""])
sketch8.MapMode = "FlatFace"
sketch8.addGeometry([
    Part.LineSegment(V(3.15, -13.82, 0), V(12.01, -13.82, 0)),
    Part.LineSegment(V(12.01, -13.82, 0), V(12.01, -14.3, 0)),
    Part.LineSegment(V(12.01, -14.3, 0), V(10.55, -14.3, 0)),
    Part.LineSegment(V(10.55, -14.3, 0), V(10.55, -15.97, 0)),
    Part.LineSegment(V(10.55, -15.97, 0), V(9.93, -15.97, 0)),
    Part.LineSegment(V(9.93, -15.97, 0), V(9.93, -14.3, 0)),
    Part.LineSegment(V(9.93, -14.3, 0), V(7.1, -14.3, 0)),
    Part.LineSegment(V(7.1, -14.3, 0), V(7.1, -15.97, 0)),
    Part.LineSegment(V(7.1, -15.97, 0), V(6.35, -15.97, 0)),
    Part.LineSegment(V(6.35, -15.97, 0), V(6.35, -14.3, 0)),
    Part.LineSegment(V(6.35, -14.3, 0), V(3.15, -14.3, 0)),
    Part.LineSegment(V(3.15, -14.3, 0), V(3.15, -13.82, 0)),
], False)
sketch8.addConstraint([
    Sketcher.Constraint("Coincident", 0, 2, 1, 1),
    Sketcher.Constraint("Coincident", 1, 2, 2, 1),
    Sketcher.Constraint("Coincident", 2, 2, 3, 1),
    Sketcher.Constraint("Coincident", 3, 2, 4, 1),
    Sketcher.Constraint("Coincident", 4, 2, 5, 1),
    Sketcher.Constraint("Coincident", 5, 2, 6, 1),
    Sketcher.Constraint("Coincident", 6, 2, 7, 1),
    Sketcher.Constraint("Coincident", 7, 2, 8, 1),
    Sketcher.Constraint("Coincident", 8, 2, 9, 1),
    Sketcher.Constraint("Coincident", 9, 2, 10, 1),
    Sketcher.Constraint("Coincident", 10, 2, 11, 1),
    Sketcher.Constraint("Coincident", 11, 2, 0, 1),
    Sketcher.Constraint("Horizontal", 0),
    Sketcher.Constraint("Vertical", 1),
    Sketcher.Constraint("Horizontal", 2),
    Sketcher.Constraint("Vertical", 3),
    Sketcher.Constraint("Horizontal", 4),
    Sketcher.Constraint("Vertical", 5),
    Sketcher.Constraint("Horizontal", 6),
    Sketcher.Constraint("Vertical", 7),
    Sketcher.Constraint("Horizontal", 8),
    Sketcher.Constraint("Vertical", 9),
    Sketcher.Constraint("Horizontal", 10),
    Sketcher.Constraint("Vertical", 11),
    Sketcher.Constraint("Horizontal", 2, 2, 5, 2),
    Sketcher.Constraint("Horizontal", 4, 2, 7, 2),
    Sketcher.Constraint("Horizontal", 6, 2, 9, 2),
    Sketcher.Constraint("DistanceX", 0, 1, 0, 2, Q("8.866951 mm")),
    Sketcher.Constraint("DistanceX", 6, 2, 6, 1, Q("2.825889 mm")),
    Sketcher.Constraint("DistanceX", 8, 2, 8, 1, Q("0.749031 mm")),
    Sketcher.Constraint("DistanceY", 3, 2, 0, 2, Q("2.156301 mm")),
    Sketcher.Constraint("DistanceX", 2, 2, 2, 1, Q("1.464015 mm")),
    Sketcher.Constraint("DistanceX", 4, 2, 4, 1, Q("0.624192 mm")),
    Sketcher.Constraint("DistanceY", 1, 2, 1, 1, Q("0.488005 mm")),
    Sketcher.Constraint("DistanceY", 0, 2, -1, 1, Q("13.81519 mm")),
    Sketcher.Constraint("DistanceX", -1, 1, 2, 2, Q("10.549762 mm")),
])
pad8 = body8.newObject("PartDesign::Pad", "Pad007")
pad8.Profile = sketch8
pad8.Length = 1
pad8.Reversed = True

doc.recompute()
